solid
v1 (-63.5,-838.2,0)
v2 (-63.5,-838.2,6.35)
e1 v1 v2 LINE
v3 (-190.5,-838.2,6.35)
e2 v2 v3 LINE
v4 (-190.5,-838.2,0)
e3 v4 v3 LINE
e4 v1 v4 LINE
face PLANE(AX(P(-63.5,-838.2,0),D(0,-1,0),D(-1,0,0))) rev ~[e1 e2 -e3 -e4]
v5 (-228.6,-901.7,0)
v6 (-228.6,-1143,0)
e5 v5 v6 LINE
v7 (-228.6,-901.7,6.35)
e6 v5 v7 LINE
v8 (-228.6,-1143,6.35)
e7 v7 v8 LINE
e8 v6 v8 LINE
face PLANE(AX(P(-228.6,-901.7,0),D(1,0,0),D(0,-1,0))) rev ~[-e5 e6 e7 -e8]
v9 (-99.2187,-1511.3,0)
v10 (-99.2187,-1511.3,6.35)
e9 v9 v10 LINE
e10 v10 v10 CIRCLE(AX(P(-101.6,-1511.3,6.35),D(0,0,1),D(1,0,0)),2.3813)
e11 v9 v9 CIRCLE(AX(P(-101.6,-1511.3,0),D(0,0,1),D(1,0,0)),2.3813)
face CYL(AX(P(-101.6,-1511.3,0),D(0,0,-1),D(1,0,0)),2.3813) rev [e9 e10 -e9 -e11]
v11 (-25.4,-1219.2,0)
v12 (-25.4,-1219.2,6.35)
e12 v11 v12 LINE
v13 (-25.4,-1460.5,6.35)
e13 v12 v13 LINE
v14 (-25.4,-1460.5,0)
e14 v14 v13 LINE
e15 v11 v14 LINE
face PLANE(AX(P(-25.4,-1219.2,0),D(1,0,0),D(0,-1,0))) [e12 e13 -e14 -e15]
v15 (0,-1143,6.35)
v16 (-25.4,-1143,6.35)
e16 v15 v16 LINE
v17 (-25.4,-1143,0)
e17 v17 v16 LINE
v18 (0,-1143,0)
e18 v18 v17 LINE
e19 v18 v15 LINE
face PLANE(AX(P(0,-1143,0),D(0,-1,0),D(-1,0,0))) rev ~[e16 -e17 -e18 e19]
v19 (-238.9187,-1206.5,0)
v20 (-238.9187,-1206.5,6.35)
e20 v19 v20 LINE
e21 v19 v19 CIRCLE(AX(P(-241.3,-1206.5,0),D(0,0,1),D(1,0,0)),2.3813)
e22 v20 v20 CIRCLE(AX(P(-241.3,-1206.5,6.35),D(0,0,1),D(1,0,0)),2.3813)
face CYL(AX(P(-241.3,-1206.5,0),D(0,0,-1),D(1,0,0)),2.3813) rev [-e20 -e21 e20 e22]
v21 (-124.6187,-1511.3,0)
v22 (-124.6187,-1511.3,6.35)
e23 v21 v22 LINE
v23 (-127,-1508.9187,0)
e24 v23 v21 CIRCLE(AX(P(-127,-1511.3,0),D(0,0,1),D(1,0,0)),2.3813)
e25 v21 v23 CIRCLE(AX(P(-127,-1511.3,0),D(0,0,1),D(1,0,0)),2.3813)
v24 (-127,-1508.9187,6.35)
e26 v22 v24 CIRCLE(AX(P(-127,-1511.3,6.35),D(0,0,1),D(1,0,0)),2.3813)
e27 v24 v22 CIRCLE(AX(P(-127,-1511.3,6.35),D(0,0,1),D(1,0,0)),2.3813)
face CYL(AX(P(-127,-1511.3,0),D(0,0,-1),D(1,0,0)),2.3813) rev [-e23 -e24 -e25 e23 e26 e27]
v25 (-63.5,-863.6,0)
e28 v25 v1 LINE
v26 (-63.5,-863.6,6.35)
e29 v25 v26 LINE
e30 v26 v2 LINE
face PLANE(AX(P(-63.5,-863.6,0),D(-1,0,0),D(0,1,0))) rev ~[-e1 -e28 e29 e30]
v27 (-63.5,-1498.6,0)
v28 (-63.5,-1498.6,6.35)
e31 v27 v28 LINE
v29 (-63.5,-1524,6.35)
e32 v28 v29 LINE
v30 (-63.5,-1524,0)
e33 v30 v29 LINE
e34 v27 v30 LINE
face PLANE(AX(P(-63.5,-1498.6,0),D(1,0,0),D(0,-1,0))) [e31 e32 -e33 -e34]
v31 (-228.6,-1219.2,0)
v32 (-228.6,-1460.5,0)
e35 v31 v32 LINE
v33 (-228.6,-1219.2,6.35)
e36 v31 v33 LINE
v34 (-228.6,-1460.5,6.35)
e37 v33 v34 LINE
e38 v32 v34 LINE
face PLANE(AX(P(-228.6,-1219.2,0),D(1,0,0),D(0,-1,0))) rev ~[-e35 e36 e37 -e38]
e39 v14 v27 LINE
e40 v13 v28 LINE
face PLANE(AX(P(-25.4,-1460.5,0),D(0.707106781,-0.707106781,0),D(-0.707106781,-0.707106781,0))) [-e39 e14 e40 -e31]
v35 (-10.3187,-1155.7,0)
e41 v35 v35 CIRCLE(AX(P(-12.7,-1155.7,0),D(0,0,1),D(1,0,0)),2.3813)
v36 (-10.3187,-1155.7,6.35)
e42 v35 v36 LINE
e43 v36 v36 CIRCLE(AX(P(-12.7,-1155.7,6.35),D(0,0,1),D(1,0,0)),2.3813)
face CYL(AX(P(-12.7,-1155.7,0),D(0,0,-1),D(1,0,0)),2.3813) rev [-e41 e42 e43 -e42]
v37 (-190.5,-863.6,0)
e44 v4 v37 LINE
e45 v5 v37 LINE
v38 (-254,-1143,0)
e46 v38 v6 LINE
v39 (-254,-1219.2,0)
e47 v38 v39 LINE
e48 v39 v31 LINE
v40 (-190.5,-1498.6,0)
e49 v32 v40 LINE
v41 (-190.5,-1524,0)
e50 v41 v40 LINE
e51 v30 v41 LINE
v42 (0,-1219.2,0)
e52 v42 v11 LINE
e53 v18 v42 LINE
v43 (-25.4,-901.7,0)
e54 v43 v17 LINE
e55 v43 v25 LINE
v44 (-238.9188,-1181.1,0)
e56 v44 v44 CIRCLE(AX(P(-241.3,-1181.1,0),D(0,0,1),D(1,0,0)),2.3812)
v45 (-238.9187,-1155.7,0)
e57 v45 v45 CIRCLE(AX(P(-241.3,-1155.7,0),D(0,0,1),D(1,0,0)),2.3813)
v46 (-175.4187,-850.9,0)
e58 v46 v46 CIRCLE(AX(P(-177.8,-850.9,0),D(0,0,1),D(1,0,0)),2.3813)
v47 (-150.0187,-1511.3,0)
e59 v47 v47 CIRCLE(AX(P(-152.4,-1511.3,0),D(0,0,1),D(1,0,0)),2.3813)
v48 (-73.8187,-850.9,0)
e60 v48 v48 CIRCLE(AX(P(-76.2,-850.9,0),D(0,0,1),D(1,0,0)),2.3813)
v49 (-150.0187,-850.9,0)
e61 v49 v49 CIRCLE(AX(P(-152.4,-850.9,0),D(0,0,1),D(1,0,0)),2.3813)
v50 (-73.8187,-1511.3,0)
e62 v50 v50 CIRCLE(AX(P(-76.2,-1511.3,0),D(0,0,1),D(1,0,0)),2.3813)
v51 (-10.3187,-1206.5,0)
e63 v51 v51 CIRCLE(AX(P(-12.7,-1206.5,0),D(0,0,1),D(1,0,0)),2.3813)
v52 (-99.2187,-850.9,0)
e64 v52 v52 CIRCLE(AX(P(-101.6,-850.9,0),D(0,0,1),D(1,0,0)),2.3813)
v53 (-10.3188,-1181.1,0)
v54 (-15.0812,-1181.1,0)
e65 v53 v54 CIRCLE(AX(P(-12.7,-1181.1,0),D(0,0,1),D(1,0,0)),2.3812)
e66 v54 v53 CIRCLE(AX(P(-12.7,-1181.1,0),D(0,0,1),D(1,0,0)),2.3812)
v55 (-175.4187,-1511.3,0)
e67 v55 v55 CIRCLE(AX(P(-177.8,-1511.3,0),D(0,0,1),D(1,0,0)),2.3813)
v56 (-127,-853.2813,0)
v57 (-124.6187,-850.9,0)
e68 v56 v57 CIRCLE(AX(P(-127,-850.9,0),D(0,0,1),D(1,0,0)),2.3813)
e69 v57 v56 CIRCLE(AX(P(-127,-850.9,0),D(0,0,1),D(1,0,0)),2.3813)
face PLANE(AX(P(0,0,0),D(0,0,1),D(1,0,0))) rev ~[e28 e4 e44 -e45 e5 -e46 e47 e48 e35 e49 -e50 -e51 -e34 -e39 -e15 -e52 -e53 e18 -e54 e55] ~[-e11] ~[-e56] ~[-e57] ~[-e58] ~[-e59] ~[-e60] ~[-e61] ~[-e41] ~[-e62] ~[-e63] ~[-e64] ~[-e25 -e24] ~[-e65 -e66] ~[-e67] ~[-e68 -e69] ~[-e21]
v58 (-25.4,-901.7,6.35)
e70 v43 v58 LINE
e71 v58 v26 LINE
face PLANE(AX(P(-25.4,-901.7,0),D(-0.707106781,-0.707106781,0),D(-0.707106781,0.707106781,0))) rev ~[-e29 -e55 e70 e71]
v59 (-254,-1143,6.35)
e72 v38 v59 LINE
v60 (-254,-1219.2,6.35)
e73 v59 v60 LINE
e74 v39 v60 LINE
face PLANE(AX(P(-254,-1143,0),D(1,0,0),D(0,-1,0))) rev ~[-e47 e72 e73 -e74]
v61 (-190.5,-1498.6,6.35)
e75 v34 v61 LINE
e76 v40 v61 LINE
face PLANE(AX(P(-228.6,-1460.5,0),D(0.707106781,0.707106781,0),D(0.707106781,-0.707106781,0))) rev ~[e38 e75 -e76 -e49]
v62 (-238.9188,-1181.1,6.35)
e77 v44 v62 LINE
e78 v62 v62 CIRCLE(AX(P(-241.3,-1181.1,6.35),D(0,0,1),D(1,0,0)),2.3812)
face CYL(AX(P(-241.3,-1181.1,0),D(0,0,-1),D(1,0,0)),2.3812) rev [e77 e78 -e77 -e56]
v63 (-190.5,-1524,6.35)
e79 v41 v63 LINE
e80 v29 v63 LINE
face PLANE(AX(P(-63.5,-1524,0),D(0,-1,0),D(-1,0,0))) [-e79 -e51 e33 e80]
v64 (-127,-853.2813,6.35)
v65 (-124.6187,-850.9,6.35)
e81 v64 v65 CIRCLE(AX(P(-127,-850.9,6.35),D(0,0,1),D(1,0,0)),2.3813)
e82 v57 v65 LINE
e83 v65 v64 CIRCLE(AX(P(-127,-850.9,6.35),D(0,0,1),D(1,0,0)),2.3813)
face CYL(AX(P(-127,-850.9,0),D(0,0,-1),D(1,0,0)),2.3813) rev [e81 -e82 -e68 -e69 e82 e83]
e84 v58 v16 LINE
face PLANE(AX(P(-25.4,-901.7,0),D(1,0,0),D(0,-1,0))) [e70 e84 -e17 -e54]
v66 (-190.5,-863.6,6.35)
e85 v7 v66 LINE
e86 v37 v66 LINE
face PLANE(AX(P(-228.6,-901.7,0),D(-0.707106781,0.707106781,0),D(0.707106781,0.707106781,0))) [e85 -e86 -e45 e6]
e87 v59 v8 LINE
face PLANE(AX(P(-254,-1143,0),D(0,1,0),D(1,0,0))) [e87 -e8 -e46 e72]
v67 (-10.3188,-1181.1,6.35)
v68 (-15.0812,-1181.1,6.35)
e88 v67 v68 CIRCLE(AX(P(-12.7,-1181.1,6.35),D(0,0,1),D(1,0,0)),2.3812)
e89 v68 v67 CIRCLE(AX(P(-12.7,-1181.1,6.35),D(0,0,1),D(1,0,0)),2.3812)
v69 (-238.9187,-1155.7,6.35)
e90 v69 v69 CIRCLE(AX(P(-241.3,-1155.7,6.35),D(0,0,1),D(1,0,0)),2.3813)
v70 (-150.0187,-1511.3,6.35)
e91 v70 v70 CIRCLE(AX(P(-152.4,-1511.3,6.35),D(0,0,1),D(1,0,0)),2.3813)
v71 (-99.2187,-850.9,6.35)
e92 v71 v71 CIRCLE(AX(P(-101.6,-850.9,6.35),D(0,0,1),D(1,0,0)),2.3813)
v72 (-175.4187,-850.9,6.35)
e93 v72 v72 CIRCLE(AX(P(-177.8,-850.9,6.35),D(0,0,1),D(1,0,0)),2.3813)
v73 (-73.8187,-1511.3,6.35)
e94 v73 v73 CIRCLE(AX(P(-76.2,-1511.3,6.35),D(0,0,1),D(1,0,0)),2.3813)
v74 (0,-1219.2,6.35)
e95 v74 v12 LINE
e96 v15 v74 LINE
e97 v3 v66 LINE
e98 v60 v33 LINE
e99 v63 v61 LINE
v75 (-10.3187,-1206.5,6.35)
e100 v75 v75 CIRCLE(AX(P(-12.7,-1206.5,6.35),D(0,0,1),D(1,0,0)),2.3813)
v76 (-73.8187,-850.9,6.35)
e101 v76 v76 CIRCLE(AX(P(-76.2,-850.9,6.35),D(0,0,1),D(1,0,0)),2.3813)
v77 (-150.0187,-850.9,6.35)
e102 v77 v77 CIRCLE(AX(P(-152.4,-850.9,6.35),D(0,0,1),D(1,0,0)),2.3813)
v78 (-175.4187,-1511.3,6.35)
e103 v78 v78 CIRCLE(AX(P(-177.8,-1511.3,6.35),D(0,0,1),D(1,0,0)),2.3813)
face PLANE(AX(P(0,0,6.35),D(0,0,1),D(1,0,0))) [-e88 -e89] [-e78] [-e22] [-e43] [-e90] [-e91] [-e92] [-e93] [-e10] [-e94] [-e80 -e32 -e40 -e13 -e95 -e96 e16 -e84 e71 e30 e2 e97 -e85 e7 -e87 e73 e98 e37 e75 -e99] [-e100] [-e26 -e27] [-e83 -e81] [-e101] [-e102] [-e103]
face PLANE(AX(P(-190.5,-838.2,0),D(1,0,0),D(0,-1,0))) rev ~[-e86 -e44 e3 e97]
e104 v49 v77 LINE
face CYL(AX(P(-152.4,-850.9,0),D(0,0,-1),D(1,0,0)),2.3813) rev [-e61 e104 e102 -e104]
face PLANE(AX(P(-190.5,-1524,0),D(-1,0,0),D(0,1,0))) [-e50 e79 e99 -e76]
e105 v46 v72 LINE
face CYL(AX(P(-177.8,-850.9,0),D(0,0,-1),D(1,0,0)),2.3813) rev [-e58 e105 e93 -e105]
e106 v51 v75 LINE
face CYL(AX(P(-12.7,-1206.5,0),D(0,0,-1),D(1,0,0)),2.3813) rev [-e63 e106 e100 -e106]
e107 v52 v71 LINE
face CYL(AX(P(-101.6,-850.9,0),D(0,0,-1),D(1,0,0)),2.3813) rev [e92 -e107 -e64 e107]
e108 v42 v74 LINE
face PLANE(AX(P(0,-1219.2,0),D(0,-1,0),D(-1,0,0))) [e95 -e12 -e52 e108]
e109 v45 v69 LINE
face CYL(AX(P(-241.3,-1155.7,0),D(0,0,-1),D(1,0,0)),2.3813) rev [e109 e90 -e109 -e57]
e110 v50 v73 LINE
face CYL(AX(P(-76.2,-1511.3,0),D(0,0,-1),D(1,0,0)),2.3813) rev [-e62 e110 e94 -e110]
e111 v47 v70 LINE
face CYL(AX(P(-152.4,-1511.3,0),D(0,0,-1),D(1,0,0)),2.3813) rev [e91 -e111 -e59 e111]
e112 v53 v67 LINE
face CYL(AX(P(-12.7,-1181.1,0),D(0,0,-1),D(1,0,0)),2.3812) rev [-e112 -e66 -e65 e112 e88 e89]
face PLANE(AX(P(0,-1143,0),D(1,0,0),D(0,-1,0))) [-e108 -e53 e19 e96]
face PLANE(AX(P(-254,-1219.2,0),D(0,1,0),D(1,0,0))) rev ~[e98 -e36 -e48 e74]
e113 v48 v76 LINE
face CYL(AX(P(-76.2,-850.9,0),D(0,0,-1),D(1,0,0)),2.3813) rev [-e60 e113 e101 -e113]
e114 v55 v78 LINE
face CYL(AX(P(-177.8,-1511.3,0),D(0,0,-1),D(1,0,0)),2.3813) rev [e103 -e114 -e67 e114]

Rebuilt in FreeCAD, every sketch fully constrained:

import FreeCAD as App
import Part
import Sketcher
Q = App.Units.Quantity

doc = App.newDocument("Part")
params = doc.addObject("Spreadsheet::Sheet", "Params")
for row, (alias, value) in enumerate([
    ("sketch1_width", "1 in"),
    ("sketch1_diameter", "0.1875 in"),
    ("sketch1_height", "9.5 in"),
    ("pad1_length", "0.25 in"),
], start=1):
    params.set(f"A{row}", alias)
    params.set(f"B{row}", "=" + value)
    params.setAlias(f"B{row}", alias)

body = doc.addObject("PartDesign::Body", "Body")

sketch1 = body.newObject("Sketcher::SketchObject", "Sketch")
sketch1.AttachmentSupport = (doc.getObject("XY_Plane"), [""])
sketch1.MapMode = "FlatFace"
sketch1.addGeometry([
    Part.LineSegment(App.Vector(-25.4, -901.7, 0), App.Vector(-63.5, -863.6, 0)),
    Part.LineSegment(App.Vector(-63.5, -863.6, 0), App.Vector(-63.5, -838.2, 0)),
    Part.LineSegment(App.Vector(-63.5, -838.2, 0), App.Vector(-190.5, -838.2, 0)),
    Part.LineSegment(App.Vector(-190.5, -838.2, 0), App.Vector(-190.5, -863.6, 0)),
    Part.LineSegment(App.Vector(-190.5, -863.6, 0), App.Vector(-228.6, -901.7, 0)),
    Part.LineSegment(App.Vector(-228.6, -901.7, 0), App.Vector(-228.6, -1143, 0)),
    Part.LineSegment(App.Vector(-228.6, -1143, 0), App.Vector(-254, -1143, 0)),
    Part.LineSegment(App.Vector(-254, -1143, 0), App.Vector(-254, -1219.2, 0)),
    Part.LineSegment(App.Vector(-254, -1219.2, 0), App.Vector(-228.6, -1219.2, 0)),
    Part.LineSegment(App.Vector(-228.6, -1219.2, 0), App.Vector(-228.6, -1460.5, 0)),
    Part.LineSegment(App.Vector(-228.6, -1460.5, 0), App.Vector(-190.5, -1498.6, 0)),
    Part.LineSegment(App.Vector(-190.5, -1498.6, 0), App.Vector(-190.5, -1524, 0)),
    Part.LineSegment(App.Vector(-190.5, -1524, 0), App.Vector(-63.5, -1524, 0)),
    Part.LineSegment(App.Vector(-63.5, -1524, 0), App.Vector(-63.5, -1498.6, 0)),
    Part.LineSegment(App.Vector(-63.5, -1498.6, 0), App.Vector(-25.4, -1460.5, 0)),
    Part.LineSegment(App.Vector(-25.4, -1460.5, 0), App.Vector(-25.4, -1219.2, 0)),
    Part.LineSegment(App.Vector(-25.4, -1219.2, 0), App.Vector(0, -1219.2, 0)),
    Part.LineSegment(App.Vector(0, -1219.2, 0), App.Vector(0, -1143, 0)),
    Part.LineSegment(App.Vector(0, -1143, 0), App.Vector(-25.4, -1143, 0)),
    Part.LineSegment(App.Vector(-25.4, -1143, 0), App.Vector(-25.4, -901.7, 0)),
    Part.Circle(App.Vector(-12.7, -1206.5, 0), App.Vector(0, 0, 1), 2.3813),
    Part.Circle(App.Vector(-12.7, -1181.1, 0), App.Vector(0, 0, 1), 2.3812),
    Part.Circle(App.Vector(-12.7, -1155.7, 0), App.Vector(0, 0, 1), 2.3813),
    Part.Circle(App.Vector(-177.8, -1511.3, 0), App.Vector(0, 0, 1), 2.3813),
    Part.Circle(App.Vector(-152.4, -1511.3, 0), App.Vector(0, 0, 1), 2.3813),
    Part.Circle(App.Vector(-127, -1511.3, 0), App.Vector(0, 0, 1), 2.3813),
    Part.Circle(App.Vector(-101.6, -1511.3, 0), App.Vector(0, 0, 1), 2.3813),
    Part.Circle(App.Vector(-76.2, -1511.3, 0), App.Vector(0, 0, 1), 2.3813),
    Part.Circle(App.Vector(-76.2, -850.9, 0), App.Vector(0, 0, 1), 2.3813),
    Part.Circle(App.Vector(-177.8, -850.9, 0), App.Vector(0, 0, 1), 2.3813),
    Part.Circle(App.Vector(-152.4, -850.9, 0), App.Vector(0, 0, 1), 2.3813),
    Part.Circle(App.Vector(-127, -850.9, 0), App.Vector(0, 0, 1), 2.3813),
    Part.Circle(App.Vector(-101.6, -850.9, 0), App.Vector(0, 0, 1), 2.3813),
    Part.Circle(App.Vector(-241.3, -1155.7, 0), App.Vector(0, 0, 1), 2.3813),
    Part.Circle(App.Vector(-241.3, -1206.5, 0), App.Vector(0, 0, 1), 2.3813),
    Part.Circle(App.Vector(-241.3, -1181.1, 0), App.Vector(0, 0, 1), 2.3812),
], False)
sketch1.addConstraint([
    Sketcher.Constraint("Coincident", 0, 2, 1, 1),
    Sketcher.Constraint("Coincident", 1, 2, 2, 1),
    Sketcher.Constraint("Coincident", 2, 2, 3, 1),
    Sketcher.Constraint("Coincident", 3, 2, 4, 1),
    Sketcher.Constraint("Coincident", 4, 2, 5, 1),
    Sketcher.Constraint("Coincident", 5, 2, 6, 1),
    Sketcher.Constraint("Coincident", 6, 2, 7, 1),
    Sketcher.Constraint("Coincident", 7, 2, 8, 1),
    Sketcher.Constraint("Coincident", 8, 2, 9, 1),
    Sketcher.Constraint("Coincident", 9, 2, 10, 1),
    Sketcher.Constraint("Coincident", 10, 2, 11, 1),
    Sketcher.Constraint("Coincident", 11, 2, 12, 1),
    Sketcher.Constraint("Coincident", 12, 2, 13, 1),
    Sketcher.Constraint("Coincident", 13, 2, 14, 1),
    Sketcher.Constraint("Coincident", 14, 2, 15, 1),
    Sketcher.Constraint("Coincident", 15, 2, 16, 1),
    Sketcher.Constraint("Coincident", 16, 2, 17, 1),
    Sketcher.Constraint("Coincident", 17, 2, 18, 1),
    Sketcher.Constraint("Coincident", 18, 2, 19, 1),
    Sketcher.Constraint("Coincident", 19, 2, 0, 1),
    Sketcher.Constraint("Vertical", 1),
    Sketcher.Constraint("Horizontal", 2),
    Sketcher.Constraint("Vertical", 3),
    Sketcher.Constraint("Vertical", 5),
    Sketcher.Constraint("Horizontal", 6),
    Sketcher.Constraint("Vertical", 7),
    Sketcher.Constraint("Horizontal", 8),
    Sketcher.Constraint("Vertical", 9),
    Sketcher.Constraint("Vertical", 11),
    Sketcher.Constraint("Horizontal", 12),
    Sketcher.Constraint("Vertical", 13),
    Sketcher.Constraint("Vertical", 15),
    Sketcher.Constraint("Horizontal", 16),
    Sketcher.Constraint("Vertical", 17),
    Sketcher.Constraint("Horizontal", 18),
    Sketcher.Constraint("Vertical", 19),
    Sketcher.Constraint("Equal", 20, 21),
    Sketcher.Constraint("Equal", 21, 22),
    Sketcher.Constraint("Equal", 22, 23),
    Sketcher.Constraint("Equal", 23, 24),
    Sketcher.Constraint("Equal", 24, 25),
    Sketcher.Constraint("Equal", 25, 26),
    Sketcher.Constraint("Equal", 26, 27),
    Sketcher.Constraint("Equal", 27, 28),
    Sketcher.Constraint("Equal", 28, 29),
    Sketcher.Constraint("Equal", 29, 30),
    Sketcher.Constraint("Equal", 30, 31),
    Sketcher.Constraint("Equal", 31, 32),
    Sketcher.Constraint("Equal", 32, 33),
    Sketcher.Constraint("Equal", 33, 34),
    Sketcher.Constraint("Equal", 34, 35),
    Sketcher.Constraint("PointOnObject", 16, 2, -2),
    Sketcher.Constraint("Perpendicular", 0, 4),
    Sketcher.Constraint("Perpendicular", 4, 10),
    Sketcher.Constraint("Perpendicular", 10, 14),
    Sketcher.Constraint("Horizontal", 23, 3, 24, 3),
    Sketcher.Constraint("Horizontal", 24, 3, 25, 3),
    Sketcher.Constraint("Horizontal", 25, 3, 26, 3),
    Sketcher.Constraint("Horizontal", 26, 3, 27, 3),
    Sketcher.Constraint("Horizontal", 28, 3, 29, 3),
    Sketcher.Constraint("Horizontal", 29, 3, 30, 3),
    Sketcher.Constraint("Horizontal", 30, 3, 31, 3),
    Sketcher.Constraint("Horizontal", 31, 3, 32, 3),
    Sketcher.Constraint("Horizontal", 22, 3, 33, 3),
    Sketcher.Constraint("Horizontal", 20, 3, 34, 3),
    Sketcher.Constraint("Horizontal", 21, 3, 35, 3),
    Sketcher.Constraint("Horizontal", 0, 2, 3, 2),
    Sketcher.Constraint("Horizontal", 10, 2, 13, 2),
    Sketcher.Constraint("Horizontal", 9, 2, 14, 2),
    Sketcher.Constraint("Horizontal", 8, 2, 15, 2),
    Sketcher.Constraint("Horizontal", 6, 2, 17, 2),
    Sketcher.Constraint("Horizontal", 4, 2, 19, 2),
    Sketcher.Constraint("Vertical", 20, 3, 21, 3),
    Sketcher.Constraint("Vertical", 21, 3, 22, 3),
    Sketcher.Constraint("Vertical", 27, 3, 28, 3),
    Sketcher.Constraint("Vertical", 23, 3, 29, 3),
    Sketcher.Constraint("Vertical", 24, 3, 30, 3),
    Sketcher.Constraint("Vertical", 25, 3, 31, 3),
    Sketcher.Constraint("Vertical", 26, 3, 32, 3),
    Sketcher.Constraint("Vertical", 33, 3, 34, 3),
    Sketcher.Constraint("Vertical", 34, 3, 35, 3),
    Sketcher.Constraint("Vertical", 5, 2, 8, 2),
    Sketcher.Constraint("Vertical", 3, 2, 10, 2),
    Sketcher.Constraint("Vertical", 1, 2, 12, 2),
    Sketcher.Constraint("Vertical", 15, 2, 18, 2),
    Sketcher.Constraint("Equal", 8, 16),
    Sketcher.Constraint("Equal", 18, 1),
    Sketcher.Constraint("Equal", 5, 9),
    Sketcher.Constraint("Equal", 3, 11),
    Sketcher.Constraint("DistanceX", 6, 2, 6, 1, Q("1 in")),
    Sketcher.Constraint("Diameter", 20, Q("0.1875 in")),
    Sketcher.Constraint("DistanceY", 20, 3, 21, 3, Q("1 in")),
    Sketcher.Constraint("DistanceY", 21, 3, 22, 3, Q("1 in")),
    Sketcher.Constraint("DistanceX", 23, 3, 24, 3, Q("1 in")),
    Sketcher.Constraint("DistanceX", 24, 3, 25, 3, Q("1 in")),
    Sketcher.Constraint("DistanceX", 25, 3, 26, 3, Q("1 in")),
    Sketcher.Constraint("DistanceX", 26, 3, 27, 3, Q("1 in")),
    Sketcher.Constraint("DistanceX", 20, 3, -1, 1, Q("0.5 in")),
    Sketcher.Constraint("DistanceX", 28, 3, 0, 2, Q("0.5 in")),
    Sketcher.Constraint("DistanceY", 0, 2, 28, 3, Q("0.5 in")),
    Sketcher.Constraint("DistanceX", 2, 2, 29, 3, Q("0.5 in")),
    Sketcher.Constraint("DistanceX", 33, 3, 5, 2, Q("0.5 in")),
    Sketcher.Constraint("DistanceY", 33, 3, 5, 2, Q("0.5 in")),
    Sketcher.Constraint("DistanceY", 7, 2, 34, 3, Q("0.5 in")),
    Sketcher.Constraint("DistanceY", 23, 3, 10, 2, Q("0.5 in")),
    Sketcher.Constraint("DistanceY", 5, 2, 5, 1, Q("9.5 in")),
    Sketcher.Constraint("DistanceX", 23, 3, -1, 1, Q("7 in")),
    Sketcher.Constraint("DistanceY", 0, 2, -1, 1, Q("34 in")),
])
sketch1.setExpression("Constraints[89]", "Params.sketch1_width")
sketch1.setExpression("Constraints[90]", "Params.sketch1_diameter")
sketch1.setExpression("Constraints[105]", "Params.sketch1_height")
pad1 = body.newObject("PartDesign::Pad", "Pad")
pad1.Profile = sketch1
pad1.setExpression("Length", "Params.pad1_length")

doc.recompute()
